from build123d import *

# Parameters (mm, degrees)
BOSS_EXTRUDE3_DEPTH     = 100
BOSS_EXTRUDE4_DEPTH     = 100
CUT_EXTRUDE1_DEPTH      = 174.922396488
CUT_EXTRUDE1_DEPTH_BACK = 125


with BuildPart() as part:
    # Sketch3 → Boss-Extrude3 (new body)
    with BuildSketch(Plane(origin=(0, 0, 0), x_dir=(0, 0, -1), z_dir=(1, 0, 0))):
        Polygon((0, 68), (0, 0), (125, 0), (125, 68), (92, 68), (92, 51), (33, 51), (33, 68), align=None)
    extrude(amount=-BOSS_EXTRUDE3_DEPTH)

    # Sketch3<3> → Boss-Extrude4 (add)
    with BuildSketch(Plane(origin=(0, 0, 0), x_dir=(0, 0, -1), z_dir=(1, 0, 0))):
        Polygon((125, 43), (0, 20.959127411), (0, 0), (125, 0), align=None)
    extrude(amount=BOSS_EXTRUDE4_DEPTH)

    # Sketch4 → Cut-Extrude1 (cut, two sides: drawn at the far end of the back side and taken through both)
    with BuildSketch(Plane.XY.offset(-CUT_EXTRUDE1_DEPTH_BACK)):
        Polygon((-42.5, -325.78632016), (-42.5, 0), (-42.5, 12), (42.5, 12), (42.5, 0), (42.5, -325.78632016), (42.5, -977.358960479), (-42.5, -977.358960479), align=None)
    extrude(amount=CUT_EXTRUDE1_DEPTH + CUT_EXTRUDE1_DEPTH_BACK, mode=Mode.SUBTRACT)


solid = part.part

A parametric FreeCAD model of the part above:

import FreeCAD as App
import Part
import Sketcher
Q = App.Units.Quantity

doc = App.newDocument("Part")
body = doc.addObject("PartDesign::Body", "Body")

# Sketch on YZ plane
sketch1 = body.newObject("Sketcher::SketchObject", "Sketch")
sketch1.AttachmentSupport = (doc.getObject("YZ_Plane"), [""])
sketch1.MapMode = "FlatFace"
sketch1.addGeometry([
    Part.LineSegment(App.Vector(68, 0, 0), App.Vector(0, 0, 0)),  # 0
    Part.LineSegment(App.Vector(0, 0, 0), App.Vector(0, -125, 0)),  # 1
    Part.LineSegment(App.Vector(0, -125, 0), App.Vector(68, -125, 0)),  # 2
    Part.LineSegment(App.Vector(68, -125, 0), App.Vector(68, -92, 0)),  # 3
    Part.LineSegment(App.Vector(68, -92, 0), App.Vector(51, -92, 0)),  # 4
    Part.LineSegment(App.Vector(51, -92, 0), App.Vector(51, -33, 0)),  # 5
    Part.LineSegment(App.Vector(51, -33, 0), App.Vector(68, -33, 0)),  # 6
    Part.LineSegment(App.Vector(68, -33, 0), App.Vector(68, 0, 0)),  # 7
], False)
sketch1.addConstraint([
    Sketcher.Constraint("Coincident", 0, 2, 1, 1),
    Sketcher.Constraint("Coincident", 1, 2, 2, 1),
    Sketcher.Constraint("Coincident", 2, 2, 3, 1),
    Sketcher.Constraint("Coincident", 3, 2, 4, 1),
    Sketcher.Constraint("Coincident", 4, 2, 5, 1),
    Sketcher.Constraint("Coincident", 5, 2, 6, 1),
    Sketcher.Constraint("Coincident", 6, 2, 7, 1),
    Sketcher.Constraint("Coincident", 7, 2, 0, 1),
    Sketcher.Constraint("Horizontal", 0),
    Sketcher.Constraint("Vertical", 1),
    Sketcher.Constraint("Horizontal", 2),
    Sketcher.Constraint("Vertical", 3),
    Sketcher.Constraint("Horizontal", 4),
    Sketcher.Constraint("Vertical", 5),
    Sketcher.Constraint("Horizontal", 6),
    Sketcher.Constraint("Vertical", 7),
    Sketcher.Constraint("Coincident", 0, 2, -1, 1),
    Sketcher.Constraint("Vertical", 3, 2, 6, 2),
    Sketcher.Constraint("Equal", 3, 7),
    Sketcher.Constraint("DistanceX", 0, 2, 0, 1, 68.0),
    Sketcher.Constraint("DistanceX", 4, 2, 4, 1, 17.0),
    Sketcher.Constraint("DistanceY", 1, 2, 1, 1, 125.0),
    Sketcher.Constraint("DistanceY", 3, 1, 3, 2, 33.0),
])
pad1 = body.newObject("PartDesign::Pad", "Pad")
pad1.Profile = sketch1
pad1.Length = 100
pad1.Reversed = True

# Sketch on YZ plane
sketch2 = body.newObject("Sketcher::SketchObject", "Sketch001")
sketch2.AttachmentSupport = (doc.getObject("YZ_Plane"), [""])
sketch2.MapMode = "FlatFace"
sketch2.addGeometry([
    Part.LineSegment(App.Vector(43, -125, 0), App.Vector(21, 0, 0)),
    Part.LineSegment(App.Vector(21, 0, 0), App.Vector(0, 0, 0)),
    Part.LineSegment(App.Vector(0, 0, 0), App.Vector(0, -125, 0)),
    Part.LineSegment(App.Vector(0, -125, 0), App.Vector(43, -125, 0)),
], False)
sketch2.addConstraint([
    Sketcher.Constraint("Coincident", 0, 2, 1, 1),
    Sketcher.Constraint("Coincident", 1, 2, 2, 1),
    Sketcher.Constraint("Coincident", 2, 2, 3, 1),
    Sketcher.Constraint("Coincident", 3, 2, 0, 1),
    Sketcher.Constraint("Horizontal", 1),
    Sketcher.Constraint("Vertical", 2),
    Sketcher.Constraint("Horizontal", 3),
    Sketcher.Constraint("Coincident", 1, 2, -1, 1),
    Sketcher.Constraint("DistanceX", 3, 1, 3, 2, 43.0),
    Sketcher.Constraint("DistanceY", 2, 2, 2, 1, 125.0),
    Sketcher.Constraint("Angle", 0, Q("100 deg")),
])
pad2 = body.newObject("PartDesign::Pad", "Pad001")
pad2.Profile = sketch2
pad2.Length = 100

# Sketch on XY plane
sketch3 = body.newObject("Sketcher::SketchObject", "Sketch002")
sketch3.AttachmentSupport = (doc.getObject("XY_Plane"), [""])
sketch3.MapMode = "FlatFace"
sketch3.addGeometry([
    Part.LineSegment(App.Vector(-42, 12, 0), App.Vector(-42, -977, 0)),
    Part.LineSegment(App.Vector(-42, -977, 0), App.Vector(42, -977, 0)),
    Part.LineSegment(App.Vector(42, -977, 0), App.Vector(42, 12, 0)),
    Part.LineSegment(App.Vector(42, 12, 0), App.Vector(-42, 12, 0)),
], False)
sketch3.addConstraint([
    Sketcher.Constraint("Coincident", 0, 2, 1, 1),
    Sketcher.Constraint("Coincident", 1, 2, 2, 1),
    Sketcher.Constraint("Coincident", 2, 2, 3, 1),
    Sketcher.Constraint("Coincident", 3, 2, 0, 1),
    Sketcher.Constraint("Vertical", 0),
    Sketcher.Constraint("Horizontal", 1),
    Sketcher.Constraint("Vertical", 2),
    Sketcher.Constraint("Horizontal", 3),
    Sketcher.Constraint("DistanceX", 1, 1, 1, 2, 85.0),
    Sketcher.Constraint("DistanceY", -1, 1, 2, 2, 12.0),
    Sketcher.Constraint("DistanceX", 0, 2, -1, 1, 42.5),
    Sketcher.Constraint("DistanceY", 0, 2, 0, 1, 989.35896),
])
pocket1 = body.newObject("PartDesign::Pocket", "Pocket")
pocket1.Profile = sketch3
pocket1.Type = "ThroughAll"
pocket1.Midplane = True

doc.recompute()
